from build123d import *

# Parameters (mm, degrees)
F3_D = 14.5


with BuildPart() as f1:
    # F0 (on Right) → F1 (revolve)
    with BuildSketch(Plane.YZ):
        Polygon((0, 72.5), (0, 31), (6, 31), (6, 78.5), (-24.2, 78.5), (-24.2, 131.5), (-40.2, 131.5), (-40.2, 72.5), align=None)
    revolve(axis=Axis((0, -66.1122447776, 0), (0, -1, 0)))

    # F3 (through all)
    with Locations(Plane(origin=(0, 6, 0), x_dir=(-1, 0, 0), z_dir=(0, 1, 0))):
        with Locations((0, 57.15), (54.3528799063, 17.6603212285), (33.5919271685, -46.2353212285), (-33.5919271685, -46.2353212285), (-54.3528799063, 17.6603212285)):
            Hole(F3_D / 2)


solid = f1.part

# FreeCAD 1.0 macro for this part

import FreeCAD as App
import Part
import Sketcher
from FreeCAD import Vector

doc = App.newDocument("Part")
body = doc.addObject("PartDesign::Body", "Body")

# Sketch on YZ plane
sketch1 = body.newObject("Sketcher::SketchObject", "Sketch")
sketch1.AttachmentSupport = (doc.getObject("YZ_Plane"), [""])
sketch1.MapMode = "FlatFace"
sketch1.addGeometry([
    Part.LineSegment(Vector(0, 72, 0), Vector(0, 31, 0)),  # 0
    Part.LineSegment(Vector(0, 31, 0), Vector(6, 31, 0)),  # 1
    Part.LineSegment(Vector(6, 31, 0), Vector(6, 78, 0)),  # 2
    Part.LineSegment(Vector(6, 78, 0), Vector(-24, 78, 0)),  # 3
    Part.LineSegment(Vector(-24, 78, 0), Vector(-24, 132, 0)),  # 4
    Part.LineSegment(Vector(-24, 132, 0), Vector(-40, 132, 0)),  # 5
    Part.LineSegment(Vector(-40, 132, 0), Vector(-40, 72, 0)),  # 6
    Part.LineSegment(Vector(-40, 72, 0), Vector(0, 72, 0)),  # 7
], False)
sketch1.addConstraint([
    Sketcher.Constraint("Coincident", 0, 2, 1, 1),
    Sketcher.Constraint("Coincident", 1, 2, 2, 1),
    Sketcher.Constraint("Coincident", 2, 2, 3, 1),
    Sketcher.Constraint("Coincident", 3, 2, 4, 1),
    Sketcher.Constraint("Coincident", 4, 2, 5, 1),
    Sketcher.Constraint("Coincident", 5, 2, 6, 1),
    Sketcher.Constraint("Coincident", 6, 2, 7, 1),
    Sketcher.Constraint("Coincident", 7, 2, 0, 1),
    Sketcher.Constraint("Vertical", 0),
    Sketcher.Constraint("Horizontal", 1),
    Sketcher.Constraint("Vertical", 2),
    Sketcher.Constraint("Horizontal", 3),
    Sketcher.Constraint("Vertical", 4),
    Sketcher.Constraint("Horizontal", 5),
    Sketcher.Constraint("Vertical", 6),
    Sketcher.Constraint("Horizontal", 7),
    Sketcher.Constraint("PointOnObject", 0, 2, -2),
    Sketcher.Constraint("DistanceX", 1, 1, 1, 2, 6.0),
    Sketcher.Constraint("DistanceX", 5, 2, 5, 1, 16.0),
    Sketcher.Constraint("DistanceY", 4, 1, 4, 2, 53.0),
    Sketcher.Constraint("DistanceY", 6, 2, 6, 1, 59.0),
    Sketcher.Constraint("DistanceX", 3, 2, 3, 1, 30.2),
    Sketcher.Constraint("DistanceY", 0, 2, 0, 1, 41.5),
    Sketcher.Constraint("DistanceY", -1, 1, 0, 2, 31.0),
])
revolution = body.newObject("PartDesign::Revolution", "Revolution")
revolution.Profile = sketch1
revolution.ReferenceAxis = (sketch1, ["H_Axis"])
revolution.Angle = 360

# Sketch on XZ plane
sketch2 = body.newObject("Sketcher::SketchObject", "Sketch001")
sketch2.AttachmentSupport = (doc.getObject("XZ_Plane"), [""])
sketch2.MapMode = "FlatFace"
sketch2.AttachmentOffset = App.Placement(Vector(0, 0, -6), App.Rotation())
sketch2.addGeometry([
    Part.Circle(Vector(0, 57, 0), Vector(0, 0, 1), 7),  # 0
    Part.Circle(Vector(-54, 18, 0), Vector(0, 0, 1), 7),  # 1
    Part.Circle(Vector(-34, -46, 0), Vector(0, 0, 1), 7),  # 2
    Part.Circle(Vector(34, -46, 0), Vector(0, 0, 1), 7),  # 3
    Part.Circle(Vector(54, 18, 0), Vector(0, 0, 1), 7),  # 4
], False)
sketch2.addConstraint([
    Sketcher.Constraint("Equal", 0, 1),
    Sketcher.Constraint("Equal", 1, 2),
    Sketcher.Constraint("Equal", 2, 3),
    Sketcher.Constraint("Equal", 3, 4),
    Sketcher.Constraint("Symmetric", 2, 3, 3, 3, -2),
    Sketcher.Constraint("Symmetric", 1, 3, 4, 3, -2),
    Sketcher.Constraint("PointOnObject", 0, 3, -2),
    Sketcher.Constraint("Diameter", 0, 14.5),
    Sketcher.Constraint("DistanceY", -1, 1, 0, 3, 57.15),
    Sketcher.Constraint("DistanceX", 1, 3, -1, 1, 54.35288),
    Sketcher.Constraint("DistanceY", -1, 1, 1, 3, 17.660321),
    Sketcher.Constraint("DistanceY", 2, 3, -1, 1, 46.235321),
    Sketcher.Constraint("DistanceX", 2, 3, -1, 1, 33.591927),
])
doc.recompute()
hole = body.newObject("PartDesign::Hole", "Hole")
hole.Profile = sketch2
hole.ThreadType = "None"
hole.Diameter = 14.5
hole.DepthType = "ThroughAll"
hole.Reversed = True

doc.recompute()
